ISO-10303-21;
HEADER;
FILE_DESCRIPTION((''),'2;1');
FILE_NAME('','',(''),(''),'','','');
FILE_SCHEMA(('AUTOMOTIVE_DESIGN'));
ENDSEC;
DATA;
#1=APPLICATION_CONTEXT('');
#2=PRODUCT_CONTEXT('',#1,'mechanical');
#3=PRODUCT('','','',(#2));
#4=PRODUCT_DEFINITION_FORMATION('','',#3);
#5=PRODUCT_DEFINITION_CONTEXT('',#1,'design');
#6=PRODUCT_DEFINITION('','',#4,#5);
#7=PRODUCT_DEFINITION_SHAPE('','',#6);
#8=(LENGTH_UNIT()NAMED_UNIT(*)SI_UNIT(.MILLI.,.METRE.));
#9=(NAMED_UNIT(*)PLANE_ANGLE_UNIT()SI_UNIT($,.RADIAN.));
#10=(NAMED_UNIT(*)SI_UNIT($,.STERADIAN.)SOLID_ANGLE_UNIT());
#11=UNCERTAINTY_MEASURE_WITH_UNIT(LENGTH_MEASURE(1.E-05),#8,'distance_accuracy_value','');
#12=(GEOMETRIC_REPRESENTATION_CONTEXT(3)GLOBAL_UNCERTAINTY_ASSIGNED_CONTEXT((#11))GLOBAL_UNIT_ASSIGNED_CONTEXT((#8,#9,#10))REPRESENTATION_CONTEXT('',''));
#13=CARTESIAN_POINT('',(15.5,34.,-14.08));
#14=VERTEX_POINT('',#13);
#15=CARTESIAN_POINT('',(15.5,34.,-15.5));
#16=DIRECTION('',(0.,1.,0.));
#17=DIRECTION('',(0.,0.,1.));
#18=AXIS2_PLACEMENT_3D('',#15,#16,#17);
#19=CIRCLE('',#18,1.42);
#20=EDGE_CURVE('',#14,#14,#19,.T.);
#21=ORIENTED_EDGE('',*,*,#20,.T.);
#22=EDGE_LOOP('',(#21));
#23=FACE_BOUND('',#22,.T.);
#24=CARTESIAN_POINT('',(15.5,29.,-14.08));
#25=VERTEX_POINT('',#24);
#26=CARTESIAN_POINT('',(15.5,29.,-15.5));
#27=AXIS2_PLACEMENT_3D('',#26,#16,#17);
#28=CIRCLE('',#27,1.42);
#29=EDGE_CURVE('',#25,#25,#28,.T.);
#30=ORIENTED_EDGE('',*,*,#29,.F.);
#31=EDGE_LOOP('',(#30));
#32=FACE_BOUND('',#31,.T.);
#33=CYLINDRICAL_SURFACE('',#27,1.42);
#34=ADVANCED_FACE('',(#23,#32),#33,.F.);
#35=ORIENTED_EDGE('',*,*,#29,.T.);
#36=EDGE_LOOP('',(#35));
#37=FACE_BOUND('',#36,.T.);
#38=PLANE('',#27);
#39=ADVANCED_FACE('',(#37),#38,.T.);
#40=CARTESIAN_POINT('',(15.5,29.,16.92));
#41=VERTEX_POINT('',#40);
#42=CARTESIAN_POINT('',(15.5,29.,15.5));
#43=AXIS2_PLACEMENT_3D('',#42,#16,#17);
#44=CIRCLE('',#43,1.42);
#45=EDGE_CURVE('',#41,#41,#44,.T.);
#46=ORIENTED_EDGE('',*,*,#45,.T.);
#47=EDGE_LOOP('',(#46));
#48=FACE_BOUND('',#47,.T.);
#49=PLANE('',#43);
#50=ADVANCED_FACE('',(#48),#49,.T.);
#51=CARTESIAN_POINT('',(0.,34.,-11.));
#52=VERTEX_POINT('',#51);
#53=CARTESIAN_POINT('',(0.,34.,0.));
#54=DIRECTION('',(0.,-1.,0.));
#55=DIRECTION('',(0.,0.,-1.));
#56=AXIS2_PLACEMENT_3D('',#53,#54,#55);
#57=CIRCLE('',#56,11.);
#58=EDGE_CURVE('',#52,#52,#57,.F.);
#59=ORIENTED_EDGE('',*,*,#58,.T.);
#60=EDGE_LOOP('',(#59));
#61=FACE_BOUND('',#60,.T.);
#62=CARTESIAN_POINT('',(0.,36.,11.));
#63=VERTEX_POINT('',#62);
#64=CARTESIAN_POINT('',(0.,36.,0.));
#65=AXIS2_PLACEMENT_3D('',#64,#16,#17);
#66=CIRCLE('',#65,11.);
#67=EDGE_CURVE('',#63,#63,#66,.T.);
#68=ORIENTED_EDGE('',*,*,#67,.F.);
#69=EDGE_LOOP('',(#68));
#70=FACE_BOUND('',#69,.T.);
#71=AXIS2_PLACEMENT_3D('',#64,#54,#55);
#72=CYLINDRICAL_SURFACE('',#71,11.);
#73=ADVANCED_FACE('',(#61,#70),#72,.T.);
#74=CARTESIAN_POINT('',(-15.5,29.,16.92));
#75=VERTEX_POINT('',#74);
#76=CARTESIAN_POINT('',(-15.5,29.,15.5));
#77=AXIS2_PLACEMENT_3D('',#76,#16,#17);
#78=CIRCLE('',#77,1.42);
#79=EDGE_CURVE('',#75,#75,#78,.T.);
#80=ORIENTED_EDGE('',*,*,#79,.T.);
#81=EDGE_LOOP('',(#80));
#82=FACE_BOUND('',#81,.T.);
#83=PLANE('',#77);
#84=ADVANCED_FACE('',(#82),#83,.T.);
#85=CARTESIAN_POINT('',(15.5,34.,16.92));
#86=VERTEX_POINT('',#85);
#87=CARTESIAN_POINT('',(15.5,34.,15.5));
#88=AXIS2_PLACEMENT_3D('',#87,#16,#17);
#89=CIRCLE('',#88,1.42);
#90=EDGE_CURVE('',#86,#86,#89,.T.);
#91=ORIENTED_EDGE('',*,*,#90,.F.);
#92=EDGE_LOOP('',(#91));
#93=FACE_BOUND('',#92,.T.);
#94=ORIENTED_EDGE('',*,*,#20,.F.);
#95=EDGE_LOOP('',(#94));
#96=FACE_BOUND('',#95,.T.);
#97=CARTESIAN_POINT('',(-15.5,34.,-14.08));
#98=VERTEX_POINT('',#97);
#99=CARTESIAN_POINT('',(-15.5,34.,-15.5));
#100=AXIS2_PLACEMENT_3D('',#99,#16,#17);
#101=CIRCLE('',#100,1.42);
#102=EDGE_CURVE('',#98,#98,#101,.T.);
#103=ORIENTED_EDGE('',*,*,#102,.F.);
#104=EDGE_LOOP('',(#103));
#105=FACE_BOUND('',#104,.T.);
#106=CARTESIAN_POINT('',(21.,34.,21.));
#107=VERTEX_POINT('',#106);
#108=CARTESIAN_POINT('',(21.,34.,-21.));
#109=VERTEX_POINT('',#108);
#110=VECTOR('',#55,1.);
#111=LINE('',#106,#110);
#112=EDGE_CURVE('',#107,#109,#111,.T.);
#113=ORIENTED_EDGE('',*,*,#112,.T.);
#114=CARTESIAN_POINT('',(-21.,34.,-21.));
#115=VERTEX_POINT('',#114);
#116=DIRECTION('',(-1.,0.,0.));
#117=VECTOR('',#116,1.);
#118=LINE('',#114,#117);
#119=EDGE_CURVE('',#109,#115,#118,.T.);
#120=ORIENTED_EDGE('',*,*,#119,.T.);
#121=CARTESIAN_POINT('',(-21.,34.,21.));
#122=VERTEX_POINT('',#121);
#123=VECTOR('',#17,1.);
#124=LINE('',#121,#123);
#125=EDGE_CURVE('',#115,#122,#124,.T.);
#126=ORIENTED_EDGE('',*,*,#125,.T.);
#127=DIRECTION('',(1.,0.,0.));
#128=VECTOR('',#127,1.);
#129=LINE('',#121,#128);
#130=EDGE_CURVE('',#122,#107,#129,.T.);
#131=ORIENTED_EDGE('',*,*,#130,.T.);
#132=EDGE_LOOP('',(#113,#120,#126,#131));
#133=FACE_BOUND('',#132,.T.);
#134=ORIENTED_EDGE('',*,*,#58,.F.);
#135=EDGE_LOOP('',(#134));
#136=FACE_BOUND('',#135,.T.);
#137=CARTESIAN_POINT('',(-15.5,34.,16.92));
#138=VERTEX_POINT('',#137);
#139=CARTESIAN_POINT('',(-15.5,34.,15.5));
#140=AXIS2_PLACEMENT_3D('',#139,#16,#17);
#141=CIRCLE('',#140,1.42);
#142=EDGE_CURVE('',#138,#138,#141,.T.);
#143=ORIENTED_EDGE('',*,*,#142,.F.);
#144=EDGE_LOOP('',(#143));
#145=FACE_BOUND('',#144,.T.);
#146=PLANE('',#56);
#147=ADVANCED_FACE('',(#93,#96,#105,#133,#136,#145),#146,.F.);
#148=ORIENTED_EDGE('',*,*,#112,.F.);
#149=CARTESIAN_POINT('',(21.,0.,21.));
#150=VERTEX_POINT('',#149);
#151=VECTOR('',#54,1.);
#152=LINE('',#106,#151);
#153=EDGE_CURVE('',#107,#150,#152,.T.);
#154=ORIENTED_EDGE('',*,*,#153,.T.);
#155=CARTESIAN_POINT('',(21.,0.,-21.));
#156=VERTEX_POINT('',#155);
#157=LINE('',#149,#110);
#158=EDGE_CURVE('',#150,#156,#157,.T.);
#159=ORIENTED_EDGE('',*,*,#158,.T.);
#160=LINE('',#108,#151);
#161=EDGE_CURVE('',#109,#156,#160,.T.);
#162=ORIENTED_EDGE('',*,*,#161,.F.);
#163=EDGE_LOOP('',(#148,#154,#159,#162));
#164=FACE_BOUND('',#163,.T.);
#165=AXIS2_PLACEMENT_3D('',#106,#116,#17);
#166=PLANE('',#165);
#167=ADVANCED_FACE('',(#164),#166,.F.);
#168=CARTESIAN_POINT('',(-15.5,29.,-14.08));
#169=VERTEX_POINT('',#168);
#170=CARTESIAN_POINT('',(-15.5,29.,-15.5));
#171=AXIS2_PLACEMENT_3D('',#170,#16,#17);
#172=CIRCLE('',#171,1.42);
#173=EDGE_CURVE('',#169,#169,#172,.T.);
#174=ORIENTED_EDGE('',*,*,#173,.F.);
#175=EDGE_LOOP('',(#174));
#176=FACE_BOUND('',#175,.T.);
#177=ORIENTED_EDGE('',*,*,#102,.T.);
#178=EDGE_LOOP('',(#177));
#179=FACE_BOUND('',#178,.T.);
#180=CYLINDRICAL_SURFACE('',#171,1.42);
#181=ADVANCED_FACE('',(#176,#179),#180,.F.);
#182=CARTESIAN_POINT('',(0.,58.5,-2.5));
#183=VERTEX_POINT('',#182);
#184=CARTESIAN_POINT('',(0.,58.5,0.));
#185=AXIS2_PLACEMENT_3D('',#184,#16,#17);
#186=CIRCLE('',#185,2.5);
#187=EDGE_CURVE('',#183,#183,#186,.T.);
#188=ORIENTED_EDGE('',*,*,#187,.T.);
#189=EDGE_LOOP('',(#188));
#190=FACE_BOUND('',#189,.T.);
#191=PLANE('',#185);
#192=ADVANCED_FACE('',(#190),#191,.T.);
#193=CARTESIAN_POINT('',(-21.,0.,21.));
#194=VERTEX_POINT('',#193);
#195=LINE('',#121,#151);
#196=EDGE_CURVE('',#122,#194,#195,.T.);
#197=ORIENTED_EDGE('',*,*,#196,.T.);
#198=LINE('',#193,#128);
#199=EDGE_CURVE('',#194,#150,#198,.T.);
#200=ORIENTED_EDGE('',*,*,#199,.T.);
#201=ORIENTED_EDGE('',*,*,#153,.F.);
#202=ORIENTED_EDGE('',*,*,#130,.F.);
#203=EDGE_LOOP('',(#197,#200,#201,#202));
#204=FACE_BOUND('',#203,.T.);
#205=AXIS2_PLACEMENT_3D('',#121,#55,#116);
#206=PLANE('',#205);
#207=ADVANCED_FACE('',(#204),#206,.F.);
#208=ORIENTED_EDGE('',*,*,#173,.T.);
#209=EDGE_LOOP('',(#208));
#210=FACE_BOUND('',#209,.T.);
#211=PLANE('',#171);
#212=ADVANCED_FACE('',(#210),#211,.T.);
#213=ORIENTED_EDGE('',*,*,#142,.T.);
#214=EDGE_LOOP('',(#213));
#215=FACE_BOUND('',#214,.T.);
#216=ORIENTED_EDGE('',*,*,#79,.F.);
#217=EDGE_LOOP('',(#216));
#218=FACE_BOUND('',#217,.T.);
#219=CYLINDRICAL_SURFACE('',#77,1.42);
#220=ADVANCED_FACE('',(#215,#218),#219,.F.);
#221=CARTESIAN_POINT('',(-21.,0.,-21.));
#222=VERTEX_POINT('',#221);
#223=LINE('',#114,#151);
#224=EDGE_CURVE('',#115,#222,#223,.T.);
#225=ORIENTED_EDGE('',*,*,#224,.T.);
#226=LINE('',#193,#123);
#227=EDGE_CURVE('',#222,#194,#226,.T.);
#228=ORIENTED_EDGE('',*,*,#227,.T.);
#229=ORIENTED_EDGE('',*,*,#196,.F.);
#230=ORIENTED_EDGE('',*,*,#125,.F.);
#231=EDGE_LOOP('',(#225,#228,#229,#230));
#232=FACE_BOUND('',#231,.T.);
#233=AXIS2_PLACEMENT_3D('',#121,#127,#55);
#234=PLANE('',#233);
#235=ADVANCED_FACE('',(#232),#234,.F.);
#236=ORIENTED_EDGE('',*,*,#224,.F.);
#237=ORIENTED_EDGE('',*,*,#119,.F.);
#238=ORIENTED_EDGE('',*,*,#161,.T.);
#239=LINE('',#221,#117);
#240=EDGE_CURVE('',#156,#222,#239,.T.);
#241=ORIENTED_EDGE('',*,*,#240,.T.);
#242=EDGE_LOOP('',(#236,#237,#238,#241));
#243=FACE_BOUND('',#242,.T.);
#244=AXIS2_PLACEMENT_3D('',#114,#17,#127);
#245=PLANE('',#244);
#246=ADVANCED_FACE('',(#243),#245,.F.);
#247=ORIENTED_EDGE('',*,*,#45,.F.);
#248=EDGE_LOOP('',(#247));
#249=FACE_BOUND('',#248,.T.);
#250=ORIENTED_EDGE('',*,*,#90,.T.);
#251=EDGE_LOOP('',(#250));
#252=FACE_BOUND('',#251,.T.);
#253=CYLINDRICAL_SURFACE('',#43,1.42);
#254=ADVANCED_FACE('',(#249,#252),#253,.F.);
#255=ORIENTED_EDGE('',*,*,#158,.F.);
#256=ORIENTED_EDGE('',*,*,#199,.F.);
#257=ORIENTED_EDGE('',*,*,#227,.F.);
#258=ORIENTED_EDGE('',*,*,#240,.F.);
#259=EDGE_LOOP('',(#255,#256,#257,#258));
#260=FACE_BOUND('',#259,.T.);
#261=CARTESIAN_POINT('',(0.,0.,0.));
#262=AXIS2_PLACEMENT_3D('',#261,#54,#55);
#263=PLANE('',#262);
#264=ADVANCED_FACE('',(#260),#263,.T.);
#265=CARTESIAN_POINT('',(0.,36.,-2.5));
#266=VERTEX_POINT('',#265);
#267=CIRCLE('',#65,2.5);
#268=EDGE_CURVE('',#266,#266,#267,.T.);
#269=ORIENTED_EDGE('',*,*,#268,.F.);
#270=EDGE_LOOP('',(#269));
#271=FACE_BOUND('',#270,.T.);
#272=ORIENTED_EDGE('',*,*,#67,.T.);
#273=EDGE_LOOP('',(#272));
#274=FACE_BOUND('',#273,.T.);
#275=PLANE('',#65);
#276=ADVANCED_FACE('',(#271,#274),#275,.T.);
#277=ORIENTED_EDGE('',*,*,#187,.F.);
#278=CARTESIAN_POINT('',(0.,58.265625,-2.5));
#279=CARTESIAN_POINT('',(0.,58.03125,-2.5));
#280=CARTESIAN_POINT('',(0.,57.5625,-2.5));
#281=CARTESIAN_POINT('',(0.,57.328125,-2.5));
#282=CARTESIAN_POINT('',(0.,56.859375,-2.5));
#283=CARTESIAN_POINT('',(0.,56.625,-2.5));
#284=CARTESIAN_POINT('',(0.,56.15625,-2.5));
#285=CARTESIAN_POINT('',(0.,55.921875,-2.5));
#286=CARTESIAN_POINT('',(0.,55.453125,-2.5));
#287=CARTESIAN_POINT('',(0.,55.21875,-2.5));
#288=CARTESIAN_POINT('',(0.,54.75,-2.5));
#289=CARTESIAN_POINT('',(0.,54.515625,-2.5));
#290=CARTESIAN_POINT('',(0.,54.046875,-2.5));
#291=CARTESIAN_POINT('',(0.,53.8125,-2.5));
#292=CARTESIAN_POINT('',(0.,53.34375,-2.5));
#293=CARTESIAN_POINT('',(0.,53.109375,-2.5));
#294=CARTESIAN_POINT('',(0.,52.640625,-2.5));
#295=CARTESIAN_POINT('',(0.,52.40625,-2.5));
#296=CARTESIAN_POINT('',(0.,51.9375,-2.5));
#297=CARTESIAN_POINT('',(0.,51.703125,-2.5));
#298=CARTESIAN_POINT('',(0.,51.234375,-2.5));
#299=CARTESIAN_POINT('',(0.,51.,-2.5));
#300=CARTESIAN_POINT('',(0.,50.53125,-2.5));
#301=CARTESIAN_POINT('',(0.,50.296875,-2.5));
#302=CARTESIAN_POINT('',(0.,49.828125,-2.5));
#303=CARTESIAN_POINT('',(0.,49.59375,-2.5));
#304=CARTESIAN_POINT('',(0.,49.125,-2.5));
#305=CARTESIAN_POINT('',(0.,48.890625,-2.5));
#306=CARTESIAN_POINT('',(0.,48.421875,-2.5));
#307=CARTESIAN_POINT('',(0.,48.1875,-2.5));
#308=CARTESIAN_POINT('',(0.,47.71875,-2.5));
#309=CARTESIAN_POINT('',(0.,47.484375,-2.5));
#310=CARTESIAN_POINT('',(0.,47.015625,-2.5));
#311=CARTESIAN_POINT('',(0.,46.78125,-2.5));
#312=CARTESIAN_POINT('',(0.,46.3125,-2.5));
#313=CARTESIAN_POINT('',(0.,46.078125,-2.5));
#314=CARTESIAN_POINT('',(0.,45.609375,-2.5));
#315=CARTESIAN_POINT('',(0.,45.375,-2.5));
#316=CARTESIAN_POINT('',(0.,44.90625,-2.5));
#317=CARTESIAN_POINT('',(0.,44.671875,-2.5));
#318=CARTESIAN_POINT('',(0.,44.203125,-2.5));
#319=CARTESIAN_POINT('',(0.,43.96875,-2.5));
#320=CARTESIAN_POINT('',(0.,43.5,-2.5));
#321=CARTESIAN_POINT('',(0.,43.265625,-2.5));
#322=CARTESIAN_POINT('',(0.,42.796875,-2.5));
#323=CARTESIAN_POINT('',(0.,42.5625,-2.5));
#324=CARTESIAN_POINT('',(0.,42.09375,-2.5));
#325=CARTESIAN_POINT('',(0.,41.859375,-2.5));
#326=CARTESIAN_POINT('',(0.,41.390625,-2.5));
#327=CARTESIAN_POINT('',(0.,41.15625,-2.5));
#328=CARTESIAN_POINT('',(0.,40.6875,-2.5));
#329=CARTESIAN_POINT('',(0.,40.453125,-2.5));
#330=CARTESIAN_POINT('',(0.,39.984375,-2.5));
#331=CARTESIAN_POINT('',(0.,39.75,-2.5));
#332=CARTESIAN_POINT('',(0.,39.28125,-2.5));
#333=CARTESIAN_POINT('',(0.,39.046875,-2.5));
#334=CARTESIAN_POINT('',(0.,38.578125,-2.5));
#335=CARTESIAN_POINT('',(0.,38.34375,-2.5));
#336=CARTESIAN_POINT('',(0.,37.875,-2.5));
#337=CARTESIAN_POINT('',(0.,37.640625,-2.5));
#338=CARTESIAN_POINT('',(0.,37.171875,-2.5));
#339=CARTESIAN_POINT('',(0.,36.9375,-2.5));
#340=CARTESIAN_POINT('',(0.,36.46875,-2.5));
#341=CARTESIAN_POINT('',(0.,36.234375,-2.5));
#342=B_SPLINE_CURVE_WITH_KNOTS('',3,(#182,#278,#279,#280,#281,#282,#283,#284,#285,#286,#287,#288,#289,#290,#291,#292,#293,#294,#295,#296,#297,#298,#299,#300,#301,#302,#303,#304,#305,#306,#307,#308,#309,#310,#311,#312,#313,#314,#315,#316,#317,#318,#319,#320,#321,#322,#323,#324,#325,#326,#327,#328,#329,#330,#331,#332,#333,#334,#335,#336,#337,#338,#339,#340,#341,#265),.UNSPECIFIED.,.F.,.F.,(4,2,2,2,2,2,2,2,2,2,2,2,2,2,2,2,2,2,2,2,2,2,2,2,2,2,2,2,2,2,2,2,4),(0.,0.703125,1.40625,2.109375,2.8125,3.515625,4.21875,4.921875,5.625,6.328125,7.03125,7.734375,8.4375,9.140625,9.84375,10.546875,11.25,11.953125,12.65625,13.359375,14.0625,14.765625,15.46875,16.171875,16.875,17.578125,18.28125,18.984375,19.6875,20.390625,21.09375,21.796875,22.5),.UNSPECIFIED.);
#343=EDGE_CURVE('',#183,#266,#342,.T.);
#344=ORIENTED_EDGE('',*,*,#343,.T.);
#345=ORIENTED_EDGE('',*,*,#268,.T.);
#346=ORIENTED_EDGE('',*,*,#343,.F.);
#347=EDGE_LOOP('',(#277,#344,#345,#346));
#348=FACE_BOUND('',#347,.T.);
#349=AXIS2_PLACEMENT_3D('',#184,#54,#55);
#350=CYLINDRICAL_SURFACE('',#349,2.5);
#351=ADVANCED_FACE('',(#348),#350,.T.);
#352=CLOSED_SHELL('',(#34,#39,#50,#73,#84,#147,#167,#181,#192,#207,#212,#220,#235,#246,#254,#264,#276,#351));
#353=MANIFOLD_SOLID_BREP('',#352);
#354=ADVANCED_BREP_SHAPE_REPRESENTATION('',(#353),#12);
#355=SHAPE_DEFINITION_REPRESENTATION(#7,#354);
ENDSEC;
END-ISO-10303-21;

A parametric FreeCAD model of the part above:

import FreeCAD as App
import Part
import Sketcher

V = App.Vector
Q = App.Units.Quantity

doc = App.newDocument("Part")
params = doc.addObject("Spreadsheet::Sheet", "Params")
for row, (alias, value) in enumerate([
    ("sketch1_width", "42 mm"),
    ("pad1_length", "34 mm"),
    ("sketch2_diameter", "22 mm"),
    ("pad2_length", "2 mm"),
    ("sketch3_diameter", "5 mm"),
    ("pad3_length", "22.5 mm"),
    ("sketch4_diameter", "2.84 mm"),
    ("pocket1_length", "5 mm"),
], start=1):
    params.set(f"A{row}", alias)
    params.set(f"B{row}", "=" + value)
    params.setAlias(f"B{row}", alias)

body = doc.addObject("PartDesign::Body", "Body")

# Sketch on XZ plane
sketch1 = doc.addObject("Sketcher::SketchObject", "Sketch")
body.addObject(sketch1)
sketch1.AttachmentSupport = (doc.XZ_Plane, [""])
sketch1.MapMode = "FlatFace"
sketch1.addGeometry([
    Part.LineSegment(V(-21, -21, 0), V(-21, 21, 0)),
    Part.LineSegment(V(-21, 21, 0), V(21, 21, 0)),
    Part.LineSegment(V(21, 21, 0), V(21, -21, 0)),
    Part.LineSegment(V(21, -21, 0), V(-21, -21, 0)),
], False)
sketch1.addConstraint([
    Sketcher.Constraint("Coincident", 0, 2, 1, 1),
    Sketcher.Constraint("Coincident", 1, 2, 2, 1),
    Sketcher.Constraint("Coincident", 2, 2, 3, 1),
    Sketcher.Constraint("Coincident", 3, 2, 0, 1),
    Sketcher.Constraint("Vertical", 0),
    Sketcher.Constraint("Horizontal", 1),
    Sketcher.Constraint("Vertical", 2),
    Sketcher.Constraint("Horizontal", 3),
    Sketcher.Constraint("Symmetric", 0, 2, 2, 2, -1, 1),
    Sketcher.Constraint("Equal", 3, 0),
    Sketcher.Constraint("DistanceX", 1, 1, 1, 2, Q("42 mm")),
])
sketch1.setExpression("Constraints[10]", "Params.sketch1_width")
pad1 = doc.addObject("PartDesign::Pad", "Pad")
body.addObject(pad1)
pad1.Profile = sketch1
pad1.setExpression("Length", "Params.pad1_length")
pad1.Reversed = True

# Sketch on XZ plane
sketch2 = doc.addObject("Sketcher::SketchObject", "Sketch001")
body.addObject(sketch2)
sketch2.AttachmentSupport = (doc.XZ_Plane, [""])
sketch2.MapMode = "FlatFace"
sketch2.AttachmentOffset = App.Placement(V(0, 0, -34), App.Rotation())
sketch2.addGeometry(Part.Circle(V(0, 0, 0), V(0, 0, 1), 11), False)
sketch2.addConstraint([
    Sketcher.Constraint("Coincident", 0, 3, -1, 1),
    Sketcher.Constraint("Diameter", 0, Q("22 mm")),
])
sketch2.setExpression("Constraints[1]", "Params.sketch2_diameter")
pad2 = doc.addObject("PartDesign::Pad", "Pad001")
body.addObject(pad2)
pad2.Profile = sketch2
pad2.setExpression("Length", "Params.pad2_length")
pad2.Reversed = True

# Sketch on XZ plane
sketch3 = doc.addObject("Sketcher::SketchObject", "Sketch002")
body.addObject(sketch3)
sketch3.AttachmentSupport = (doc.XZ_Plane, [""])
sketch3.MapMode = "FlatFace"
sketch3.AttachmentOffset = App.Placement(V(0, 0, -36), App.Rotation())
sketch3.addGeometry(Part.Circle(V(0, 0, 0), V(0, 0, 1), 2.5), False)
sketch3.addConstraint([
    Sketcher.Constraint("Coincident", 0, 3, -1, 1),
    Sketcher.Constraint("Diameter", 0, Q("5 mm")),
])
sketch3.setExpression("Constraints[1]", "Params.sketch3_diameter")
pad3 = doc.addObject("PartDesign::Pad", "Pad002")
body.addObject(pad3)
pad3.Profile = sketch3
pad3.setExpression("Length", "Params.pad3_length")
pad3.Reversed = True

# Sketch on XZ plane
sketch4 = doc.addObject("Sketcher::SketchObject", "Sketch003")
body.addObject(sketch4)
sketch4.AttachmentSupport = (doc.XZ_Plane, [""])
sketch4.MapMode = "FlatFace"
sketch4.AttachmentOffset = App.Placement(V(0, 0, -34), App.Rotation())
sketch4.addGeometry([
    Part.Circle(V(-15.5, -15.5, 0), V(0, 0, 1), 1.4),
    Part.Circle(V(15.5, -15.5, 0), V(0, 0, 1), 1.4),
    Part.Circle(V(15.5, 15.5, 0), V(0, 0, 1), 1.4),
    Part.Circle(V(-15.5, 15.5, 0), V(0, 0, 1), 1.4),
], False)
sketch4.addConstraint([
    Sketcher.Constraint("Equal", 0, 1),
    Sketcher.Constraint("Equal", 1, 2),
    Sketcher.Constraint("Equal", 2, 3),
    Sketcher.Constraint("Symmetric", 0, 3, 2, 3, -1, 1),
    Sketcher.Constraint("Symmetric", 1, 3, 3, 3, -1, 1),
    Sketcher.Constraint("Symmetric", 0, 3, 1, 3, -2),
    Sketcher.Constraint("Diameter", 0, Q("2.84 mm")),
    Sketcher.Constraint("DistanceX", 0, 3, 1, 3, Q("31 mm")),
    Sketcher.Constraint("DistanceY", 1, 3, 2, 3, Q("31 mm")),
])
sketch4.setExpression("Constraints[6]", "Params.sketch4_diameter")
pocket1 = doc.addObject("PartDesign::Pocket", "Pocket")
body.addObject(pocket1)
pocket1.Profile = sketch4
pocket1.setExpression("Length", "Params.pocket1_length")
pocket1.Reversed = True

doc.recompute()
